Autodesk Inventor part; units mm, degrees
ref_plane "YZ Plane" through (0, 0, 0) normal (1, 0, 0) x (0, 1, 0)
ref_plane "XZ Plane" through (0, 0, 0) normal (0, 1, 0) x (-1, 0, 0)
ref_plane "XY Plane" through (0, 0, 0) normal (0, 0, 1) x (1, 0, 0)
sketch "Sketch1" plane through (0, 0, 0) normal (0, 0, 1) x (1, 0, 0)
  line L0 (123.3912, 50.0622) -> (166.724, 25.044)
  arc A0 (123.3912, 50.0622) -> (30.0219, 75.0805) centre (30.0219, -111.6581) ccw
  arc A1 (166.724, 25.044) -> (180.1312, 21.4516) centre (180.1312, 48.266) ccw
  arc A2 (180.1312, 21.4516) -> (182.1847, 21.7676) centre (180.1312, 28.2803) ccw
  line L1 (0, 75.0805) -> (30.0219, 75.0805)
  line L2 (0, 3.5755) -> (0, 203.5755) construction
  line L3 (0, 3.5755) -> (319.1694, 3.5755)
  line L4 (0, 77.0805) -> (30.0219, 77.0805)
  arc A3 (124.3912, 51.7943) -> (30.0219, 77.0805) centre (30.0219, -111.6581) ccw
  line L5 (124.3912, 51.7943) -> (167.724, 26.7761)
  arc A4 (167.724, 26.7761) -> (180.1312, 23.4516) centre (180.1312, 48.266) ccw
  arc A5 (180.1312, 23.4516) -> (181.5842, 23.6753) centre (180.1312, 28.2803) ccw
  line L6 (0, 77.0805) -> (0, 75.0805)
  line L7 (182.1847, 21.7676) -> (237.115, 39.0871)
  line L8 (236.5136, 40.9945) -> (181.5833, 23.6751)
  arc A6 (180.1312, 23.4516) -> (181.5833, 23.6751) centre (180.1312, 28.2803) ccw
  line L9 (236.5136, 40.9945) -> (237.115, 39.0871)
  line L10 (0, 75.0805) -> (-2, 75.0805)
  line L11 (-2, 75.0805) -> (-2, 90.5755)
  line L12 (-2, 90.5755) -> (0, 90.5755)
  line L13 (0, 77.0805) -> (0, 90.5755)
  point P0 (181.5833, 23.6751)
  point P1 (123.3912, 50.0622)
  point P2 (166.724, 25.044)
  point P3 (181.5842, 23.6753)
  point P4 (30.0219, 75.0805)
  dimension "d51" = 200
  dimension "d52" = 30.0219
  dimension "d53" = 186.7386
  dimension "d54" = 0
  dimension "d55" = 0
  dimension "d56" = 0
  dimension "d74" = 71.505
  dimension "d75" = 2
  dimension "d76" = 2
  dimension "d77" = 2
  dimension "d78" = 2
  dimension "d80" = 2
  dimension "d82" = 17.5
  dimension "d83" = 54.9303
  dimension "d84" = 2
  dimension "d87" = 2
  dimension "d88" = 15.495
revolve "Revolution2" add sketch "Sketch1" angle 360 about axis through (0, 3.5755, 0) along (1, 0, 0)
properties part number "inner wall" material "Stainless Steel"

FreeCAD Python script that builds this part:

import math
import FreeCAD as App
import Part
import Sketcher
Q = App.Units.Quantity

doc = App.newDocument("Part")
body = doc.addObject("PartDesign::Body", "Body")

# Sketch on XY plane
sketch1 = body.newObject("Sketcher::SketchObject", "Sketch")
sketch1.AttachmentSupport = (doc.getObject("XY_Plane"), [""])
sketch1.MapMode = "FlatFace"
sketch1.addGeometry(Part.ArcOfCircle(Part.Circle(App.Vector(30.0219, -111.6581, 0), App.Vector(0, 0, 1), 186.738538), math.radians(59.999989), math.radians(90)), False)
sketch1.addGeometry(Part.LineSegment(App.Vector(123.3912, 50.0622, 0), App.Vector(166.724, 25.044, 0)), False)
sketch1.addGeometry(Part.ArcOfCircle(Part.Circle(App.Vector(180.1312, 48.266, 0), App.Vector(0, 0, 1), 26.814442), math.radians(-119.999948), math.radians(-90)), False)
sketch1.addGeometry(Part.ArcOfCircle(Part.Circle(App.Vector(180.130964, 28.283383, 0), App.Vector(0, 0, 1), 6.831783), math.radians(-89.998022), math.radians(-72.505461)), False)
sketch1.addGeometry(Part.LineSegment(App.Vector(182.1847, 21.7676, 0), App.Vector(237.115, 39.0871, 0)), False)
sketch1.addGeometry(Part.LineSegment(App.Vector(237.115, 39.0871, 0), App.Vector(236.5136, 40.9945, 0)), False)
sketch1.addGeometry(Part.LineSegment(App.Vector(236.5136, 40.9945, 0), App.Vector(181.5842, 23.6753, 0)), False)
sketch1.addGeometry(Part.ArcOfCircle(Part.Circle(App.Vector(180.130897, 28.284258, 0), App.Vector(0, 0, 1), 4.832658), math.radians(-89.996407), math.radians(-72.498823)), False)
sketch1.addGeometry(Part.ArcOfCircle(Part.Circle(App.Vector(180.1312, 48.266, 0), App.Vector(0, 0, 1), 24.814399), math.radians(-120.000001), math.radians(-90)), False)
sketch1.addGeometry(Part.LineSegment(App.Vector(167.724, 26.7761, 0), App.Vector(124.3912, 51.7943, 0)), False)
sketch1.addGeometry(Part.ArcOfCircle(Part.Circle(App.Vector(30.0219, -111.6581, 0), App.Vector(0, 0, 1), 188.738581), math.radians(59.999997), math.radians(90)), False)
sketch1.addGeometry(Part.LineSegment(App.Vector(30.0219, 77.0805, 0), App.Vector(0, 77.0805, 0)), False)
sketch1.addGeometry(Part.LineSegment(App.Vector(0, 77.0805, 0), App.Vector(0, 90.5755, 0)), False)
sketch1.addGeometry(Part.LineSegment(App.Vector(0, 90.5755, 0), App.Vector(-2, 90.5755, 0)), False)
sketch1.addGeometry(Part.LineSegment(App.Vector(-2, 90.5755, 0), App.Vector(-2, 75.0805, 0)), False)
sketch1.addGeometry(Part.LineSegment(App.Vector(-2, 75.0805, 0), App.Vector(30.0219, 75.0805, 0)), False)
sketch1.addGeometry(Part.LineSegment(App.Vector(-2, 3.5755, 0), App.Vector(237.115, 3.5755, 0)), True)  # axis
sketch1.addConstraint(Sketcher.Constraint("Tangent", 0, 1, 1, 1))
sketch1.addConstraint(Sketcher.Constraint("Tangent", 1, 2, 2, 1))
sketch1.addConstraint(Sketcher.Constraint("Tangent", 2, 2, 3, 1))
sketch1.addConstraint(Sketcher.Constraint("Tangent", 3, 2, 4, 1))
sketch1.addConstraint(Sketcher.Constraint("Coincident", 4, 2, 5, 1))
sketch1.addConstraint(Sketcher.Constraint("Coincident", 5, 2, 6, 1))
sketch1.addConstraint(Sketcher.Constraint("Tangent", 6, 2, 7, 2))
sketch1.addConstraint(Sketcher.Constraint("Tangent", 7, 1, 8, 2))
sketch1.addConstraint(Sketcher.Constraint("Tangent", 8, 1, 9, 1))
sketch1.addConstraint(Sketcher.Constraint("Tangent", 9, 2, 10, 1))
sketch1.addConstraint(Sketcher.Constraint("Tangent", 10, 2, 11, 1))
sketch1.addConstraint(Sketcher.Constraint("Coincident", 11, 2, 12, 1))
sketch1.addConstraint(Sketcher.Constraint("Coincident", 12, 2, 13, 1))
sketch1.addConstraint(Sketcher.Constraint("Coincident", 13, 2, 14, 1))
sketch1.addConstraint(Sketcher.Constraint("Coincident", 14, 2, 15, 1))
sketch1.addConstraint(Sketcher.Constraint("Tangent", 15, 2, 0, 2))
sketch1.addConstraint(Sketcher.Constraint("Horizontal", 11))
sketch1.addConstraint(Sketcher.Constraint("Vertical", 12))
sketch1.addConstraint(Sketcher.Constraint("Horizontal", 13))
sketch1.addConstraint(Sketcher.Constraint("Vertical", 14))
sketch1.addConstraint(Sketcher.Constraint("Horizontal", 15))
sketch1.addConstraint(Sketcher.Constraint("Horizontal", 16))
sketch1.addConstraint(Sketcher.Constraint("Coincident", 8, 3, 2, 3))
sketch1.addConstraint(Sketcher.Constraint("Coincident", 10, 3, 0, 3))
sketch1.addConstraint(Sketcher.Constraint("PointOnObject", 11, 2, -2))
sketch1.addConstraint(Sketcher.Constraint("Perpendicular", 4, 5))
sketch1.addConstraint(Sketcher.Constraint("Perpendicular", 5, 6))
sketch1.addConstraint(Sketcher.Constraint("Parallel", 1, 9))
sketch1.addConstraint(Sketcher.Constraint("Vertical", 3, 3, 7, 3))
sketch1.addConstraint(Sketcher.Constraint("Vertical", 8, 3, 2, 2))
sketch1.addConstraint(Sketcher.Constraint("Vertical", 14, 2, 16, 1))
sketch1.addConstraint(Sketcher.Constraint("Vertical", 4, 2, 16, 2))
sketch1.addConstraint(Sketcher.Constraint("DistanceX", 13, 2, 13, 1, Q("2 mm")))
sketch1.addConstraint(Sketcher.Constraint("Distance", 5, Q("2 mm")))
sketch1.addConstraint(Sketcher.Constraint("Angle", 4, Q("17.5 deg")))
sketch1.addConstraint(Sketcher.Constraint("DistanceY", 2, 2, 7, 1, Q("2 mm")))
sketch1.addConstraint(Sketcher.Constraint("Radius", 0, Q("186.7385 mm")))
sketch1.addConstraint(Sketcher.Constraint("DistanceX", 11, 2, 11, 1, Q("30.022 mm")))
sketch1.addConstraint(Sketcher.Constraint("DistanceY", 14, 2, 14, 1, Q("15.495 mm")))
sketch1.addConstraint(Sketcher.Constraint("Angle", 1, Q("-30 deg")))
sketch1.addConstraint(Sketcher.Constraint("DistanceY", 16, 1, 14, 2, Q("71.505 mm")))
sketch1.addConstraint(Sketcher.Constraint("Radius", 2, Q("26.8144 mm")))
sketch1.addConstraint(Sketcher.Constraint("Radius", 3, Q("6.8318 mm")))
sketch1.addConstraint(Sketcher.Constraint("DistanceX", 3, 2, 4, 2, Q("54.9303 mm")))
sketch1.addConstraint(Sketcher.Constraint("DistanceX", 16, 1, 16, 2, Q("239.115 mm")))
sketch1.addConstraint(Sketcher.Constraint("DistanceY", 0, 3, -1, 1, Q("111.658 mm")))
revolution = body.newObject("PartDesign::Revolution", "Revolution")
revolution.Profile = sketch1
revolution.ReferenceAxis = (sketch1, ["Axis0"])
revolution.Angle = 360

doc.recompute()
